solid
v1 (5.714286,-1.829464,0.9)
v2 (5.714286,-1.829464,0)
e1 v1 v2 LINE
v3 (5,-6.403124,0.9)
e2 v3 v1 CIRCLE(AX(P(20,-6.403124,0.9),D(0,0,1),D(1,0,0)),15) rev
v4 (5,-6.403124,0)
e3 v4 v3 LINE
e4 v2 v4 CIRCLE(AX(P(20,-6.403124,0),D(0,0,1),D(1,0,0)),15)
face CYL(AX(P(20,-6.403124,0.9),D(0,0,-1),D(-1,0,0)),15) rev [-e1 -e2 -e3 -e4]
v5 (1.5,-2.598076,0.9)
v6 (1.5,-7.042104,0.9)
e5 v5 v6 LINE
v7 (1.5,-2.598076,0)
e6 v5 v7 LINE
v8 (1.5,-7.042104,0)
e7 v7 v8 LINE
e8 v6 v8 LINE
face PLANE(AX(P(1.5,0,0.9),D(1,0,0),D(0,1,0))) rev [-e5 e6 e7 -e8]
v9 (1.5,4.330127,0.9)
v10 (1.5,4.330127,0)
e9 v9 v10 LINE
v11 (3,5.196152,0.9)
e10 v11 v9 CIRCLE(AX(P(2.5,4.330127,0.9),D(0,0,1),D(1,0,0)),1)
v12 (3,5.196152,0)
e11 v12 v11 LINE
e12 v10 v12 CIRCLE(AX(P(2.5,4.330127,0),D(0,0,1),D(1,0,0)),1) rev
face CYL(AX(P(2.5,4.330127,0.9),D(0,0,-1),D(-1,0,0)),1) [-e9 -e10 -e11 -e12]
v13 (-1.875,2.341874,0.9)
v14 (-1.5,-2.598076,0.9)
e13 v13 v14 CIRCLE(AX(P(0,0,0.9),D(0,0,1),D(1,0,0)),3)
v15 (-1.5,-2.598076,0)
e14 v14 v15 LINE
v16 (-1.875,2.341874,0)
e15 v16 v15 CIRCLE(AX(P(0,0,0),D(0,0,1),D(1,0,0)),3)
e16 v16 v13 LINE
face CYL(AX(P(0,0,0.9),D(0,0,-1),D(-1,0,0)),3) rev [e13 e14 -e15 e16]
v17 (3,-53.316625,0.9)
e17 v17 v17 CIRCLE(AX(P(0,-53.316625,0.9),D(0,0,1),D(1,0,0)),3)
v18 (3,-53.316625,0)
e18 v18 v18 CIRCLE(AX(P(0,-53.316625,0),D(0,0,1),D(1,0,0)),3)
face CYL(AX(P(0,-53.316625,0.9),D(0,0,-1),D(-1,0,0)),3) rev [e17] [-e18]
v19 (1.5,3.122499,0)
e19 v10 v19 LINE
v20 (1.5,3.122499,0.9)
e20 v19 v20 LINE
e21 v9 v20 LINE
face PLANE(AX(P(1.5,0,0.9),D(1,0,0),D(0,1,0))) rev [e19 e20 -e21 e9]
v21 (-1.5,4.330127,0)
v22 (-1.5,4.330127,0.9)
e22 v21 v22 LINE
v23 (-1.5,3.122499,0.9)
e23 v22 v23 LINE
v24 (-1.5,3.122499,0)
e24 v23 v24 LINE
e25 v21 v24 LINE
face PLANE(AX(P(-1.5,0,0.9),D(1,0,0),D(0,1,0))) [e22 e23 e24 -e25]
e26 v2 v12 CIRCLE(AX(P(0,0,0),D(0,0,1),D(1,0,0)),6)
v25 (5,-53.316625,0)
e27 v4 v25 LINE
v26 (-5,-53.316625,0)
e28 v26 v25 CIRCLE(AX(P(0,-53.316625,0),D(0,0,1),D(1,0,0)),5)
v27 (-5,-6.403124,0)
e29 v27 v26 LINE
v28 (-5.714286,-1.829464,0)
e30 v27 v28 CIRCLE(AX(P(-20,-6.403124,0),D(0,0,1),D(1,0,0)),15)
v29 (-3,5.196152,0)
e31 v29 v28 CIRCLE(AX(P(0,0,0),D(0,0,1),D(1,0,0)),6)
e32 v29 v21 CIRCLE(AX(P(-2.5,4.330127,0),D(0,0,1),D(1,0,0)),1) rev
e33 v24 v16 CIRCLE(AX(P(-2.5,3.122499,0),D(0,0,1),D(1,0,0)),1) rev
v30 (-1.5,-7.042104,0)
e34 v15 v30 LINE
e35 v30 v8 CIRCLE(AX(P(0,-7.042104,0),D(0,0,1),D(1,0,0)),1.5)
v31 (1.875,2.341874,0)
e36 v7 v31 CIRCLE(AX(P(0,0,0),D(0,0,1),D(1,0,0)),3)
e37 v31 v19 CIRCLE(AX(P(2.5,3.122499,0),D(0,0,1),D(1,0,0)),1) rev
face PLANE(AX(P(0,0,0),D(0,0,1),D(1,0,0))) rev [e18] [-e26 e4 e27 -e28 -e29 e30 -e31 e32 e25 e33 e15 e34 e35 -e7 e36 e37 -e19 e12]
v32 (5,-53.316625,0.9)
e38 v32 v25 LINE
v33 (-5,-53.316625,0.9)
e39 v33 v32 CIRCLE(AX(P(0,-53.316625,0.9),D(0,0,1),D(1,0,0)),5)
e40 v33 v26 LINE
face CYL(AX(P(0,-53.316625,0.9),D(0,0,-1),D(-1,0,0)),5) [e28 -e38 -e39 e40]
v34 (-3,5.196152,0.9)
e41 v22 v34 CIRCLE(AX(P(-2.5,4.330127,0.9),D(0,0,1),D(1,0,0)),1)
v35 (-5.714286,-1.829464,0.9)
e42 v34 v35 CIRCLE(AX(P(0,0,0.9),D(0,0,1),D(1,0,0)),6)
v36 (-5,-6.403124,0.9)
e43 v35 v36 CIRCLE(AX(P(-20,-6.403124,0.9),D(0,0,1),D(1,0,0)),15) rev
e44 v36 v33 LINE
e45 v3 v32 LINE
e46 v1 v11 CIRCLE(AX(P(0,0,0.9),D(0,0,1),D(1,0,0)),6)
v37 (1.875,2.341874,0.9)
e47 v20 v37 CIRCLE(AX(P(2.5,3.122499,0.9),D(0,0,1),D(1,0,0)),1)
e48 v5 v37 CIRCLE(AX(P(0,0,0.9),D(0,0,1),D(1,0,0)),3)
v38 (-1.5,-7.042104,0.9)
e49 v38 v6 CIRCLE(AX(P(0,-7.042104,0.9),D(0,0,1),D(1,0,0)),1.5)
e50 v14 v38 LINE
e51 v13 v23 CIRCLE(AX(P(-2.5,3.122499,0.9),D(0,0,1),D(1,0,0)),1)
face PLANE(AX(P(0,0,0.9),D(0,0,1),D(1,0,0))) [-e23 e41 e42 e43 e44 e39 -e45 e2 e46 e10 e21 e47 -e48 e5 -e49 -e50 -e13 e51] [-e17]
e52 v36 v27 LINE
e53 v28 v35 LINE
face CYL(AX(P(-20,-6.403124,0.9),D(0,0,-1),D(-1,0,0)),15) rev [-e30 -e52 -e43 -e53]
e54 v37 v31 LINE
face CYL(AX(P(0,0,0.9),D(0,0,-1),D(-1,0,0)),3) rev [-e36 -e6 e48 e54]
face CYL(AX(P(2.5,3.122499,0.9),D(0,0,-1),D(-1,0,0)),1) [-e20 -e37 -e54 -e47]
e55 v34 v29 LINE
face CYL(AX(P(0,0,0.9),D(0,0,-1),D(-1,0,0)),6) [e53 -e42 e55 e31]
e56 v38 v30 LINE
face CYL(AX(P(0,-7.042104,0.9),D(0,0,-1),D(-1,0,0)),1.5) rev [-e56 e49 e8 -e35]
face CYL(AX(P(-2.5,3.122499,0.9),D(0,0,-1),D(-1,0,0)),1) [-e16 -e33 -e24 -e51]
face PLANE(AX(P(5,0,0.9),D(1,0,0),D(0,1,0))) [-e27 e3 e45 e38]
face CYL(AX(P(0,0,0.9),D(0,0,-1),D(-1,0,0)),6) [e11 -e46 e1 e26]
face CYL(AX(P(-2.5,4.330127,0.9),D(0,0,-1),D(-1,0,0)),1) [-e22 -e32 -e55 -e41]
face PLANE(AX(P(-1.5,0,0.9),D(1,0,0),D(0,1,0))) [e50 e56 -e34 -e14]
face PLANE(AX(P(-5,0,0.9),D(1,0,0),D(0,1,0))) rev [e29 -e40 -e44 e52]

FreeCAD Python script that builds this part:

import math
import FreeCAD as App
import Part
import Sketcher

V = App.Vector
Q = App.Units.Quantity


def edges_at(feature, points):
    """Names of the edges that pass closest to the given points."""
    edges = feature.Shape.Edges
    near = lambda p: min(range(len(edges)), key=lambda i: edges[i].distToShape(Part.Vertex(*p))[0])
    return sorted({f"Edge{near(p) + 1}" for p in points})

doc = App.newDocument("Part")
params = doc.addObject("Spreadsheet::Sheet", "Params")
for row, (alias, value) in enumerate([
    ("sketch1_diameter", "6 mm"),
    ("sketch1_radius", "6 mm"),
    ("sketch1_radius2", "5 mm"),
    ("sketch1_radius3", "1.5 mm"),
    ("sketch1_height", "50 mm"),
    ("pad1_length", "0.9 mm"),
    ("fillet_radius", "15 mm"),
    ("fillet2_radius", "1 mm"),
], start=1):
    params.set(f"A{row}", alias)
    params.set(f"B{row}", "=" + value)
    params.setAlias(f"B{row}", alias)

body = doc.addObject("PartDesign::Body", "Body")

sketch1 = doc.addObject("Sketcher::SketchObject", "Sketch")
body.addObject(sketch1)
sketch1.AttachmentSupport = (doc.XY_Plane, [""])
sketch1.MapMode = "FlatFace"
sketch1.addGeometry(Part.LineSegment(V(-1.5, 2.598076, 0), V(-1.5, 5.809475, 0)), False)
sketch1.addGeometry(Part.ArcOfCircle(Part.Circle(V(0, 0, 0), V(0, 0, 1), 6), math.radians(104.477512), math.radians(213.55731)), False)
sketch1.addGeometry(Part.LineSegment(V(-5, -3.316625, 0), V(-5, -53.316625, 0)), False)
sketch1.addGeometry(Part.ArcOfCircle(Part.Circle(V(0, -53.316625, 0), V(0, 0, 1), 5), math.radians(180), math.radians(360)), False)
sketch1.addGeometry(Part.LineSegment(V(5, -53.316625, 0), V(5, -3.316625, 0)), False)
sketch1.addGeometry(Part.ArcOfCircle(Part.Circle(V(0, 0, 0), V(0, 0, 1), 6), math.radians(-33.55731), math.radians(75.522488)), False)
sketch1.addGeometry(Part.LineSegment(V(1.5, 5.809475, 0), V(1.5, 2.598076, 0)), False)
sketch1.addGeometry(Part.ArcOfCircle(Part.Circle(V(0, 0, 0), V(0, 0, 1), 3), math.radians(-60), math.radians(60)), False)
sketch1.addGeometry(Part.LineSegment(V(1.5, -2.598076, 0), V(1.5, -7.042104, 0)), False)
sketch1.addGeometry(Part.ArcOfCircle(Part.Circle(V(0, -7.042104, 0), V(0, 0, 1), 1.5), math.radians(180), math.radians(360)), False)
sketch1.addGeometry(Part.LineSegment(V(-1.5, -7.042104, 0), V(-1.5, -2.598076, 0)), False)
sketch1.addGeometry(Part.ArcOfCircle(Part.Circle(V(0, 0, 0), V(0, 0, 1), 3), math.radians(120), math.radians(240)), False)
sketch1.addGeometry(Part.Circle(V(0, -53.316625, 0), V(0, 0, 1), 3), False)
sketch1.addConstraint(Sketcher.Constraint("Coincident", 0, 2, 1, 1))
sketch1.addConstraint(Sketcher.Constraint("Coincident", 1, 2, 2, 1))
sketch1.addConstraint(Sketcher.Constraint("Tangent", 2, 2, 3, 1))
sketch1.addConstraint(Sketcher.Constraint("Tangent", 3, 2, 4, 1))
sketch1.addConstraint(Sketcher.Constraint("Coincident", 4, 2, 5, 1))
sketch1.addConstraint(Sketcher.Constraint("Coincident", 5, 2, 6, 1))
sketch1.addConstraint(Sketcher.Constraint("Coincident", 6, 2, 7, 2))
sketch1.addConstraint(Sketcher.Constraint("Coincident", 7, 1, 8, 1))
sketch1.addConstraint(Sketcher.Constraint("Tangent", 8, 2, 9, 2))
sketch1.addConstraint(Sketcher.Constraint("Tangent", 9, 1, 10, 1))
sketch1.addConstraint(Sketcher.Constraint("Coincident", 10, 2, 11, 2))
sketch1.addConstraint(Sketcher.Constraint("Coincident", 11, 1, 0, 1))
sketch1.addConstraint(Sketcher.Constraint("Vertical", 0))
sketch1.addConstraint(Sketcher.Constraint("Vertical", 2))
sketch1.addConstraint(Sketcher.Constraint("Vertical", 4))
sketch1.addConstraint(Sketcher.Constraint("Vertical", 6))
sketch1.addConstraint(Sketcher.Constraint("Vertical", 8))
sketch1.addConstraint(Sketcher.Constraint("Vertical", 10))
sketch1.addConstraint(Sketcher.Constraint("Coincident", 1, 3, -1, 1))
sketch1.addConstraint(Sketcher.Constraint("Coincident", 5, 3, -1, 1))
sketch1.addConstraint(Sketcher.Constraint("Coincident", 7, 3, -1, 1))
sketch1.addConstraint(Sketcher.Constraint("Coincident", 11, 3, -1, 1))
sketch1.addConstraint(Sketcher.Constraint("Coincident", 12, 3, 3, 3))
sketch1.addConstraint(Sketcher.Constraint("Equal", 1, 5))
sketch1.addConstraint(Sketcher.Constraint("Equal", 7, 11))
sketch1.addConstraint(Sketcher.Constraint("Equal", 11, 12))
sketch1.addConstraint(Sketcher.Constraint("PointOnObject", 3, 3, -2))
sketch1.addConstraint(Sketcher.Constraint("PointOnObject", 9, 3, -2))
sketch1.addConstraint(Sketcher.Constraint("Horizontal", 0, 2, 5, 2))
sketch1.addConstraint(Sketcher.Constraint("Vertical", 6, 2, 7, 1))
sketch1.addConstraint(Sketcher.Constraint("Diameter", 12, Q("6 mm")))
sketch1.addConstraint(Sketcher.Constraint("Radius", 1, Q("6 mm")))
sketch1.addConstraint(Sketcher.Constraint("Radius", 3, Q("5 mm")))
sketch1.addConstraint(Sketcher.Constraint("Radius", 9, Q("1.5 mm")))
sketch1.addConstraint(Sketcher.Constraint("DistanceY", 2, 2, 2, 1, Q("50 mm")))
sketch1.addConstraint(Sketcher.Constraint("DistanceY", 8, 2, 8, 1, Q("4.444028 mm")))
sketch1.setExpression("Constraints[30]", "Params.sketch1_diameter")
sketch1.setExpression("Constraints[31]", "Params.sketch1_radius")
sketch1.setExpression("Constraints[32]", "Params.sketch1_radius2")
sketch1.setExpression("Constraints[33]", "Params.sketch1_radius3")
sketch1.setExpression("Constraints[34]", "Params.sketch1_height")
pad1 = doc.addObject("PartDesign::Pad", "Pad")
body.addObject(pad1)
pad1.Profile = sketch1
pad1.setExpression("Length", "Params.pad1_length")
doc.recompute()

fillet = doc.addObject("PartDesign::Fillet", "Fillet")
body.addObject(fillet)
fillet.Base = (pad1, edges_at(pad1, [(5, -3.317, 0.45), (-5, -3.317, 0.45)]))
fillet.setExpression("Radius", "Params.fillet_radius")
doc.recompute()

fillet2 = doc.addObject("PartDesign::Fillet", "Fillet001")
body.addObject(fillet2)
fillet2.Base = (fillet, edges_at(fillet, [
    (1.5, 2.598, 0.45),
    (1.5, 5.809, 0.45),
    (-1.5, 5.809, 0.45),
    (-1.5, 2.598, 0.45),
]))
fillet2.setExpression("Radius", "Params.fillet2_radius")

doc.recompute()
